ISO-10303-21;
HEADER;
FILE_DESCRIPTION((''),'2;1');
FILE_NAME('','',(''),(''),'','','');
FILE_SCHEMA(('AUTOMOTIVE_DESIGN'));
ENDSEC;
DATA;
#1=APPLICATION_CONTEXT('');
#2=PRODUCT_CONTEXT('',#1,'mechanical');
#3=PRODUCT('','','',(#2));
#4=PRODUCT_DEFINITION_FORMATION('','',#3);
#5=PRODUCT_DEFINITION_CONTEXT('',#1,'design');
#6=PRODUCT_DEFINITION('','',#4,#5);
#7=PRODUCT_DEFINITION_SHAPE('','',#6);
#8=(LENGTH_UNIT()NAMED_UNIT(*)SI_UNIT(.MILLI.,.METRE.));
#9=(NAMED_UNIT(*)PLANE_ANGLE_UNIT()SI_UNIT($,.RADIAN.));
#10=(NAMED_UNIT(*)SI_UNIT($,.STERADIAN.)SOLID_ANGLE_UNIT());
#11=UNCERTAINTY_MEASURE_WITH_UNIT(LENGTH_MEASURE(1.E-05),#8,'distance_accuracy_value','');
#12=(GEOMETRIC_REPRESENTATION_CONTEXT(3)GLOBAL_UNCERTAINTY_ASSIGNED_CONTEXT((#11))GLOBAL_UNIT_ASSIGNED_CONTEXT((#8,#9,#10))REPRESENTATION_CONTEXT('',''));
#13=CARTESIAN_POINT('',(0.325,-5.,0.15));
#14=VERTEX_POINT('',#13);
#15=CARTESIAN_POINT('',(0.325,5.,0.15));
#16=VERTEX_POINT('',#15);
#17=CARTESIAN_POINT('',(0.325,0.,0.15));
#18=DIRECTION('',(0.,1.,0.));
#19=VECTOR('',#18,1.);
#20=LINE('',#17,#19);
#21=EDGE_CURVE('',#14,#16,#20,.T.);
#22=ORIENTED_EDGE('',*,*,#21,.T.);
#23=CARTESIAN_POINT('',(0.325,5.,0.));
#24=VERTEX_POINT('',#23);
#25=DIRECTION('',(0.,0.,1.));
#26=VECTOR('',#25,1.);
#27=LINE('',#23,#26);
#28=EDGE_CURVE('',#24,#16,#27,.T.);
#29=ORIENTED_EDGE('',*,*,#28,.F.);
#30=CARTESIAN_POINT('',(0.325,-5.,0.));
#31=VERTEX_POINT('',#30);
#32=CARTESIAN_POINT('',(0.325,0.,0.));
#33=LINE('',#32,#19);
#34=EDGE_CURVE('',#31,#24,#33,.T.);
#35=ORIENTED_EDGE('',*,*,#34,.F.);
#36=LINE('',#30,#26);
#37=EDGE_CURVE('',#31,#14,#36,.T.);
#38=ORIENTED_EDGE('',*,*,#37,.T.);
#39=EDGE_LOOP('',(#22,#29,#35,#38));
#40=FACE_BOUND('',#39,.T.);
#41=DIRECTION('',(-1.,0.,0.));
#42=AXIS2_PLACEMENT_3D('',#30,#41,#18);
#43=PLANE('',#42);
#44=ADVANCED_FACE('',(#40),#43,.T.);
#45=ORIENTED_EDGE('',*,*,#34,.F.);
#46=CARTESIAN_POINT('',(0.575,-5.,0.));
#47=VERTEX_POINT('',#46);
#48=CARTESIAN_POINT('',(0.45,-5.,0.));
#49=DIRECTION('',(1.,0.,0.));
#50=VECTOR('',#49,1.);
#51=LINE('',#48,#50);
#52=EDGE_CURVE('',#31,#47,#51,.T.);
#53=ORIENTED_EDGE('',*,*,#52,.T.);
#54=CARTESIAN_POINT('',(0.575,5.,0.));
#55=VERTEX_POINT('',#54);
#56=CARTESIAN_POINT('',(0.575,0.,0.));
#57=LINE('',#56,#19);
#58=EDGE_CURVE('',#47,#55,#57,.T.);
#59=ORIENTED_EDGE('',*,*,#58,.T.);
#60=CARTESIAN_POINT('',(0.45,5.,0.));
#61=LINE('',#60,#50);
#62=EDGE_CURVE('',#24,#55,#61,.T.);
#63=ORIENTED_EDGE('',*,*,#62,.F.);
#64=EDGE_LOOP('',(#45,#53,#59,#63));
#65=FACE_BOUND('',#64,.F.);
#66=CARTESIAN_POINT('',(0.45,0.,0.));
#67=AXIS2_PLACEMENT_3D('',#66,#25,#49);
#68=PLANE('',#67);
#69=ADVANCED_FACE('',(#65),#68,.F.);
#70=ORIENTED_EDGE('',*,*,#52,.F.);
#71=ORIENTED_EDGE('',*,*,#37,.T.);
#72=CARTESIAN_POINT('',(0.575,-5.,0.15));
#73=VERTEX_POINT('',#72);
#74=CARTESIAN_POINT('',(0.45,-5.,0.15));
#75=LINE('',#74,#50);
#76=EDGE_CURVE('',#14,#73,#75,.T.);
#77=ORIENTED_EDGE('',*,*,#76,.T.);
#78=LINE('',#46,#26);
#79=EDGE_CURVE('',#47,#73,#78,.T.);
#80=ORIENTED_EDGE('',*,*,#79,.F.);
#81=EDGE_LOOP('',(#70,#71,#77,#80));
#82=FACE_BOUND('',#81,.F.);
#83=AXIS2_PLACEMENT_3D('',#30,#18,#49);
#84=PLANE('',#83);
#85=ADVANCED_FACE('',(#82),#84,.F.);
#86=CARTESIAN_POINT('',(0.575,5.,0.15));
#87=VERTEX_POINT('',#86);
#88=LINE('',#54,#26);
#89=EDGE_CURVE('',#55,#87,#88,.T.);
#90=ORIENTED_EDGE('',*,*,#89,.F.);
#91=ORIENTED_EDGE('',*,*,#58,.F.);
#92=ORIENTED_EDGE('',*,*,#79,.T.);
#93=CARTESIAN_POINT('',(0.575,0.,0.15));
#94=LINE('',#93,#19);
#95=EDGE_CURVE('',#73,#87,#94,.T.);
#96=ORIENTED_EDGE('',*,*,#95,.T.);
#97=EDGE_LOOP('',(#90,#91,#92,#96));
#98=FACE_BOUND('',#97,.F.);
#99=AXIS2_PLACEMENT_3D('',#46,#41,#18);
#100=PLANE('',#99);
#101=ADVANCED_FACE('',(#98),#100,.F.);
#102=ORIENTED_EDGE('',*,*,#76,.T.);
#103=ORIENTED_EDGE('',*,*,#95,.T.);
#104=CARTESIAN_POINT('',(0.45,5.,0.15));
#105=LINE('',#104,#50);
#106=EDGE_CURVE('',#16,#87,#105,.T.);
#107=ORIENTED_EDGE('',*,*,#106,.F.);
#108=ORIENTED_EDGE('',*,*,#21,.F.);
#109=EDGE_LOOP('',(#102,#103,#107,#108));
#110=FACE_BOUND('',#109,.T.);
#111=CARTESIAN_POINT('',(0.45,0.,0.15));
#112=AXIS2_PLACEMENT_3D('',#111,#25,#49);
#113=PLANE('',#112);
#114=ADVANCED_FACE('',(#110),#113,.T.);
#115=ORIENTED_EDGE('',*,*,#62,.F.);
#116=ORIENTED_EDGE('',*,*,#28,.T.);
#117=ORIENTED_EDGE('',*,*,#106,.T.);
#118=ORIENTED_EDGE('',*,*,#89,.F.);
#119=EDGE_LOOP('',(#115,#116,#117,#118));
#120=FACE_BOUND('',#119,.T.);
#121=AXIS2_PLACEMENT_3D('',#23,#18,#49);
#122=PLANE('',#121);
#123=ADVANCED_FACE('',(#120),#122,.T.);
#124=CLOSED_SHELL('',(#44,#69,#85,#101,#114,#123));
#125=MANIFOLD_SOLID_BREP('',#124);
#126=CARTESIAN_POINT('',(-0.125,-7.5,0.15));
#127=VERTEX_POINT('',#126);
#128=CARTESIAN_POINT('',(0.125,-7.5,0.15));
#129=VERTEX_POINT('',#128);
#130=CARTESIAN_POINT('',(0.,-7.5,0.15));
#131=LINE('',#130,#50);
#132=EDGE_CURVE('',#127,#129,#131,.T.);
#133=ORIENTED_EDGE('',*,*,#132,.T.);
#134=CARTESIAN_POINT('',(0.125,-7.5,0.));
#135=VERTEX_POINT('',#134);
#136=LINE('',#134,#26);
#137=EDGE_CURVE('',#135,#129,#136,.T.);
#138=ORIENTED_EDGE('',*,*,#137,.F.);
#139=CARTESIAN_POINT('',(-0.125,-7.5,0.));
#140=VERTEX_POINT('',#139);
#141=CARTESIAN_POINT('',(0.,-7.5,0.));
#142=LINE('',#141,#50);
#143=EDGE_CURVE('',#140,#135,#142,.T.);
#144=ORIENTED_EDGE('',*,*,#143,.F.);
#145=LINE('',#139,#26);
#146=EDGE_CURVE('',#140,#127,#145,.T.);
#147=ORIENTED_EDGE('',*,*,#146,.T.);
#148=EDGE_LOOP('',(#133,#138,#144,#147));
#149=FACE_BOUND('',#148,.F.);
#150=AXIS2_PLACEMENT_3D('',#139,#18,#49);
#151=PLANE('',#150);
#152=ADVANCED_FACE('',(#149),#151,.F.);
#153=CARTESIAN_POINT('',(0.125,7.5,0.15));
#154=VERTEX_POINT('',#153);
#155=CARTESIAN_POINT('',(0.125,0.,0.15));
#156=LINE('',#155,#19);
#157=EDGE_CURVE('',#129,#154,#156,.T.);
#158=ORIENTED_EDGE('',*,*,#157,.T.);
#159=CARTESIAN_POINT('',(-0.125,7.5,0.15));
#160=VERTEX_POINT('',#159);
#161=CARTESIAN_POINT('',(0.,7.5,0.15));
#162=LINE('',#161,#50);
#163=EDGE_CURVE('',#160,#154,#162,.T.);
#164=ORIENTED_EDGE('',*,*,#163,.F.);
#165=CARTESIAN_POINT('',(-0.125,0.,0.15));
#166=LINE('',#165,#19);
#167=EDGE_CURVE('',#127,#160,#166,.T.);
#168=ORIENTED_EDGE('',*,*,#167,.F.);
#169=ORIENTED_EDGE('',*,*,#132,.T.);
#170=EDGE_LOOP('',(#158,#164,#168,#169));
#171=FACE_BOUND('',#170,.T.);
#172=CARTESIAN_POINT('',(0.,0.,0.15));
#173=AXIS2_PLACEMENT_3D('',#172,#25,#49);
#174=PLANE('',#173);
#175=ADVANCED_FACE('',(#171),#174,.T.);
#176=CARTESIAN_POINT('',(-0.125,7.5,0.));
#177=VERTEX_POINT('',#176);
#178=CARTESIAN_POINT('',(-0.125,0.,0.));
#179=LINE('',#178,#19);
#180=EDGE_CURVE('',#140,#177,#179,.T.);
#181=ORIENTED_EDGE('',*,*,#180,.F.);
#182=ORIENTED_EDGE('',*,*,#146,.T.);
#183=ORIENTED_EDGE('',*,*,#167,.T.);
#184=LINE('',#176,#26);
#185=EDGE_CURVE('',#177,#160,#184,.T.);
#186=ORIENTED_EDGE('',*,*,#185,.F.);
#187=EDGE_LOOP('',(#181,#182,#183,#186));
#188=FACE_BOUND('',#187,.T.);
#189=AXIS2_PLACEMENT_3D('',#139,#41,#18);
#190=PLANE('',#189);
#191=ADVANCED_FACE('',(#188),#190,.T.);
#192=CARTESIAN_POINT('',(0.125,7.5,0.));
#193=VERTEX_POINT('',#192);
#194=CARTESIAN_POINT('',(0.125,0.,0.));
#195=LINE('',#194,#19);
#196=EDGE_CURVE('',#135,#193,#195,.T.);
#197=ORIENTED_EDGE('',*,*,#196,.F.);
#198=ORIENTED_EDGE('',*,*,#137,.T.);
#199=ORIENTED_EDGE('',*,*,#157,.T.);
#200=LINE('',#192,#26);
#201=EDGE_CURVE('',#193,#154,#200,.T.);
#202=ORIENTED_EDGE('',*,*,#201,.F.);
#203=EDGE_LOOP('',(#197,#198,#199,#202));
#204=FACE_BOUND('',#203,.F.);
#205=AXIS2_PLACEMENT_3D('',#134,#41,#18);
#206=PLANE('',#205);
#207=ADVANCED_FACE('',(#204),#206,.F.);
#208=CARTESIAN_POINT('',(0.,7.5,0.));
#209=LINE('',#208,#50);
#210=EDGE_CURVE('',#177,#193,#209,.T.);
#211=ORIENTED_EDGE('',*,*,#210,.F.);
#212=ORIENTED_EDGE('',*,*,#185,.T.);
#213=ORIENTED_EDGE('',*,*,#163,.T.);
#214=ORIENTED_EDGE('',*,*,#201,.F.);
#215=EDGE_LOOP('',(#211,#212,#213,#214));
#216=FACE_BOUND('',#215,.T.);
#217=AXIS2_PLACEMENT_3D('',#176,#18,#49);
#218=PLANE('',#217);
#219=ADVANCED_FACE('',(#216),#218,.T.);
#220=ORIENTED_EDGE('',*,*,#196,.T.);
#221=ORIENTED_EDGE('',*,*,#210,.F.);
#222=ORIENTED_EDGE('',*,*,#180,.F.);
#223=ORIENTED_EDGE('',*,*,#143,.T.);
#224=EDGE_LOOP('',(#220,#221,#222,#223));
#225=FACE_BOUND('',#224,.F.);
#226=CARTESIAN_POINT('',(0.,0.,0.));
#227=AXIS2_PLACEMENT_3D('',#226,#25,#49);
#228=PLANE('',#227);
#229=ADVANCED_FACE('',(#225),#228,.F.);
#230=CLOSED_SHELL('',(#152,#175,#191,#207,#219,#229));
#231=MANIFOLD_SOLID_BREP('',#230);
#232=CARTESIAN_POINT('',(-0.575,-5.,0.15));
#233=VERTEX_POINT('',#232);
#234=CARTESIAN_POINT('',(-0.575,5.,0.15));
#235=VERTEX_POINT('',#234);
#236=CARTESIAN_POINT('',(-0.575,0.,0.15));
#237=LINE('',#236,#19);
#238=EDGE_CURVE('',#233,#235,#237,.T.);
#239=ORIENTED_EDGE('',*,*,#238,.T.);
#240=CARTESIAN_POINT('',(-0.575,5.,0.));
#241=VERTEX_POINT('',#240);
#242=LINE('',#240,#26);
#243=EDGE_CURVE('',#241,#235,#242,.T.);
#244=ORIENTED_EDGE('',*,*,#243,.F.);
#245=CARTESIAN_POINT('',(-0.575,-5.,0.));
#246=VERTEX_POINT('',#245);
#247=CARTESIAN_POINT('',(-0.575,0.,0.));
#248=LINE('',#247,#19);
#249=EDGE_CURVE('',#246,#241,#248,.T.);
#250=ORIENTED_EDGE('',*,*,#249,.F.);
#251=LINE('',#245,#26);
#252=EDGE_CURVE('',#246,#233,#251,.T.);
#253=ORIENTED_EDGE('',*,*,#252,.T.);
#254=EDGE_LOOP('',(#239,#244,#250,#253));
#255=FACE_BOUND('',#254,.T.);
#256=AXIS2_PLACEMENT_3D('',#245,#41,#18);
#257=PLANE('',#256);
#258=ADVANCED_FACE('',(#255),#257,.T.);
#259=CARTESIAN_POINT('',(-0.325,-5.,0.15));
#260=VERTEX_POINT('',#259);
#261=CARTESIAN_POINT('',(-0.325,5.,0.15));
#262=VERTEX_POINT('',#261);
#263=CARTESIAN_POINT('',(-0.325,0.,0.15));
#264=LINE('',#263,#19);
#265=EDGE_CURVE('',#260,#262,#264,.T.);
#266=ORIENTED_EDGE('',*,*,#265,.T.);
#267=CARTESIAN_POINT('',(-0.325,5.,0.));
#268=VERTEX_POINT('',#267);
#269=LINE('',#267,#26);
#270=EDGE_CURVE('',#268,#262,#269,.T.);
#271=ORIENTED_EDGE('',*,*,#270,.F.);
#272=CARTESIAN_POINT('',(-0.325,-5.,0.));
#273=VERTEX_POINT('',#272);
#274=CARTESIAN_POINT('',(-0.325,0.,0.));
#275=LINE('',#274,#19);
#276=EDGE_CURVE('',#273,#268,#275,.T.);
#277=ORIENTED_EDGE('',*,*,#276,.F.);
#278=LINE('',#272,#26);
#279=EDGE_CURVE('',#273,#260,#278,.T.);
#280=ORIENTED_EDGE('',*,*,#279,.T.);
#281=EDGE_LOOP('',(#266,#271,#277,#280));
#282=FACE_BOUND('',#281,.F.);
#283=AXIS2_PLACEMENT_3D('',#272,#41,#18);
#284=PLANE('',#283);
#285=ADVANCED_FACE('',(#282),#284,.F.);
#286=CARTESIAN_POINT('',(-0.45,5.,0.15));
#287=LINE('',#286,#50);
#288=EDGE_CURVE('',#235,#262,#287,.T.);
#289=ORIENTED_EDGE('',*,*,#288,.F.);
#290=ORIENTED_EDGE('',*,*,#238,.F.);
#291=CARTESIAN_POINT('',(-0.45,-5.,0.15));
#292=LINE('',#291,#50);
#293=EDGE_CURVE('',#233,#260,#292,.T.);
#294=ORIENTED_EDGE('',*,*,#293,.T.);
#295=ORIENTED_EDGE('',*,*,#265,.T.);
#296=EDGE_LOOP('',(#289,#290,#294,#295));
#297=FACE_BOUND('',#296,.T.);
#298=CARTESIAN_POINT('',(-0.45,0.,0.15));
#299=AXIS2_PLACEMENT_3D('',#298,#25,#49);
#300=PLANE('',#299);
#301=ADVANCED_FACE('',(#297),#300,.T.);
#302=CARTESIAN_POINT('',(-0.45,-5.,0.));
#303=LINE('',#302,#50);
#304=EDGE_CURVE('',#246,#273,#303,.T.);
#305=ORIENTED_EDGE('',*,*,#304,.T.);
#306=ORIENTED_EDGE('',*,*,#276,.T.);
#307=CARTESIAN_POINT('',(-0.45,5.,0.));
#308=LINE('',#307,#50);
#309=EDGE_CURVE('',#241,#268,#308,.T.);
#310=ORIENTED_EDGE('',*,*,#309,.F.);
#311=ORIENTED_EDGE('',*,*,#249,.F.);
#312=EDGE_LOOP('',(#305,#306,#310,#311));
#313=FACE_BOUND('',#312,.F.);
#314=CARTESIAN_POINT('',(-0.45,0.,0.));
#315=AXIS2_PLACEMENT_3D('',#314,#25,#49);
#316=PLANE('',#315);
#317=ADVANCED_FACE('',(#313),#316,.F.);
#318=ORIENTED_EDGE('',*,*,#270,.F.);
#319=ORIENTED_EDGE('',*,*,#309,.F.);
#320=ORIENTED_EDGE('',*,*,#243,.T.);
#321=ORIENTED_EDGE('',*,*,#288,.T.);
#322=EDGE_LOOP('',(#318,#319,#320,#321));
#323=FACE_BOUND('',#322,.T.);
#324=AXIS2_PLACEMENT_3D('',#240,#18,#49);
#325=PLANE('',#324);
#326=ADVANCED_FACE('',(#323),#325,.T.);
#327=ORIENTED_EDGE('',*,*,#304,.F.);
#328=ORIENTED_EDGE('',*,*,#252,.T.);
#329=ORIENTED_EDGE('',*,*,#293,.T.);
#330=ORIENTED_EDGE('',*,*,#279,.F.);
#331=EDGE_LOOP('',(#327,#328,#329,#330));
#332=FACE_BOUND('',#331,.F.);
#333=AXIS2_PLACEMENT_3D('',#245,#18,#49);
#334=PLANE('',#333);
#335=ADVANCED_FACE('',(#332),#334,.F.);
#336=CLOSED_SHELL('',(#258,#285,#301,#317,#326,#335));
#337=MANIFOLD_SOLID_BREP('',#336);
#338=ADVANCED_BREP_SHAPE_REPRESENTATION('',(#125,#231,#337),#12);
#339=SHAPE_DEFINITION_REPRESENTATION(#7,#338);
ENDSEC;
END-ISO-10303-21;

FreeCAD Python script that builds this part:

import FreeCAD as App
import Part
import Sketcher

V = App.Vector
Q = App.Units.Quantity

doc = App.newDocument("Part")
body = doc.addObject("PartDesign::Body", "Body")
body.AllowCompound = True

# Sketch on XY plane
sketch1 = body.newObject("Sketcher::SketchObject", "Sketch")
sketch1.AttachmentSupport = (doc.getObject("XY_Plane"), [""])
sketch1.MapMode = "FlatFace"
sketch1.addGeometry(Part.LineSegment(V(-0.57, 5, 0), V(-0.57, -5, 0)), False)
sketch1.addGeometry(Part.LineSegment(V(-0.57, -5, 0), V(-0.33, -5, 0)), False)
sketch1.addGeometry(Part.LineSegment(V(-0.33, -5, 0), V(-0.33, 5, 0)), False)
sketch1.addGeometry(Part.LineSegment(V(-0.33, 5, 0), V(-0.57, 5, 0)), False)
sketch1.addGeometry(Part.LineSegment(V(-0.12, 7.5, 0), V(-0.12, -7.5, 0)), False)
sketch1.addGeometry(Part.LineSegment(V(-0.12, -7.5, 0), V(0.12, -7.5, 0)), False)
sketch1.addGeometry(Part.LineSegment(V(0.12, -7.5, 0), V(0.12, 7.5, 0)), False)
sketch1.addGeometry(Part.LineSegment(V(0.12, 7.5, 0), V(-0.12, 7.5, 0)), False)
sketch1.addGeometry(Part.LineSegment(V(0.33, 5, 0), V(0.33, -5, 0)), False)
sketch1.addGeometry(Part.LineSegment(V(0.33, -5, 0), V(0.57, -5, 0)), False)
sketch1.addGeometry(Part.LineSegment(V(0.57, -5, 0), V(0.57, 5, 0)), False)
sketch1.addGeometry(Part.LineSegment(V(0.57, 5, 0), V(0.33, 5, 0)), False)
sketch1.addConstraint(Sketcher.Constraint("Coincident", 0, 2, 1, 1))
sketch1.addConstraint(Sketcher.Constraint("Coincident", 1, 2, 2, 1))
sketch1.addConstraint(Sketcher.Constraint("Coincident", 2, 2, 3, 1))
sketch1.addConstraint(Sketcher.Constraint("Coincident", 3, 2, 0, 1))
sketch1.addConstraint(Sketcher.Constraint("Coincident", 4, 2, 5, 1))
sketch1.addConstraint(Sketcher.Constraint("Coincident", 5, 2, 6, 1))
sketch1.addConstraint(Sketcher.Constraint("Coincident", 6, 2, 7, 1))
sketch1.addConstraint(Sketcher.Constraint("Coincident", 7, 2, 4, 1))
sketch1.addConstraint(Sketcher.Constraint("Coincident", 8, 2, 9, 1))
sketch1.addConstraint(Sketcher.Constraint("Coincident", 9, 2, 10, 1))
sketch1.addConstraint(Sketcher.Constraint("Coincident", 10, 2, 11, 1))
sketch1.addConstraint(Sketcher.Constraint("Coincident", 11, 2, 8, 1))
sketch1.addConstraint(Sketcher.Constraint("Vertical", 0))
sketch1.addConstraint(Sketcher.Constraint("Horizontal", 1))
sketch1.addConstraint(Sketcher.Constraint("Vertical", 2))
sketch1.addConstraint(Sketcher.Constraint("Horizontal", 3))
sketch1.addConstraint(Sketcher.Constraint("Vertical", 4))
sketch1.addConstraint(Sketcher.Constraint("Horizontal", 5))
sketch1.addConstraint(Sketcher.Constraint("Vertical", 6))
sketch1.addConstraint(Sketcher.Constraint("Horizontal", 7))
sketch1.addConstraint(Sketcher.Constraint("Vertical", 8))
sketch1.addConstraint(Sketcher.Constraint("Horizontal", 9))
sketch1.addConstraint(Sketcher.Constraint("Vertical", 10))
sketch1.addConstraint(Sketcher.Constraint("Horizontal", 11))
sketch1.addConstraint(Sketcher.Constraint("Symmetric", 4, 2, 6, 2, -1, 1))
sketch1.addConstraint(Sketcher.Constraint("Symmetric", 2, 2, 8, 2, -1, 1))
sketch1.addConstraint(Sketcher.Constraint("Symmetric", 0, 2, 10, 2, -1, 1))
sketch1.addConstraint(Sketcher.Constraint("Horizontal", 1, 2, 8, 2))
sketch1.addConstraint(Sketcher.Constraint("Equal", 3, 5))
sketch1.addConstraint(Sketcher.Constraint("DistanceY", 0, 2, 0, 1, Q("10 mm")))
sketch1.addConstraint(Sketcher.Constraint("DistanceY", 4, 2, 4, 1, Q("15 mm")))
sketch1.addConstraint(Sketcher.Constraint("DistanceX", 1, 1, 1, 2, Q("0.25 mm")))
sketch1.addConstraint(Sketcher.Constraint("DistanceX", 1, 2, 4, 2, Q("0.2 mm")))
pad1 = body.newObject("PartDesign::Pad", "Pad")
pad1.Profile = sketch1
pad1.Length = 0.15

doc.recompute()
